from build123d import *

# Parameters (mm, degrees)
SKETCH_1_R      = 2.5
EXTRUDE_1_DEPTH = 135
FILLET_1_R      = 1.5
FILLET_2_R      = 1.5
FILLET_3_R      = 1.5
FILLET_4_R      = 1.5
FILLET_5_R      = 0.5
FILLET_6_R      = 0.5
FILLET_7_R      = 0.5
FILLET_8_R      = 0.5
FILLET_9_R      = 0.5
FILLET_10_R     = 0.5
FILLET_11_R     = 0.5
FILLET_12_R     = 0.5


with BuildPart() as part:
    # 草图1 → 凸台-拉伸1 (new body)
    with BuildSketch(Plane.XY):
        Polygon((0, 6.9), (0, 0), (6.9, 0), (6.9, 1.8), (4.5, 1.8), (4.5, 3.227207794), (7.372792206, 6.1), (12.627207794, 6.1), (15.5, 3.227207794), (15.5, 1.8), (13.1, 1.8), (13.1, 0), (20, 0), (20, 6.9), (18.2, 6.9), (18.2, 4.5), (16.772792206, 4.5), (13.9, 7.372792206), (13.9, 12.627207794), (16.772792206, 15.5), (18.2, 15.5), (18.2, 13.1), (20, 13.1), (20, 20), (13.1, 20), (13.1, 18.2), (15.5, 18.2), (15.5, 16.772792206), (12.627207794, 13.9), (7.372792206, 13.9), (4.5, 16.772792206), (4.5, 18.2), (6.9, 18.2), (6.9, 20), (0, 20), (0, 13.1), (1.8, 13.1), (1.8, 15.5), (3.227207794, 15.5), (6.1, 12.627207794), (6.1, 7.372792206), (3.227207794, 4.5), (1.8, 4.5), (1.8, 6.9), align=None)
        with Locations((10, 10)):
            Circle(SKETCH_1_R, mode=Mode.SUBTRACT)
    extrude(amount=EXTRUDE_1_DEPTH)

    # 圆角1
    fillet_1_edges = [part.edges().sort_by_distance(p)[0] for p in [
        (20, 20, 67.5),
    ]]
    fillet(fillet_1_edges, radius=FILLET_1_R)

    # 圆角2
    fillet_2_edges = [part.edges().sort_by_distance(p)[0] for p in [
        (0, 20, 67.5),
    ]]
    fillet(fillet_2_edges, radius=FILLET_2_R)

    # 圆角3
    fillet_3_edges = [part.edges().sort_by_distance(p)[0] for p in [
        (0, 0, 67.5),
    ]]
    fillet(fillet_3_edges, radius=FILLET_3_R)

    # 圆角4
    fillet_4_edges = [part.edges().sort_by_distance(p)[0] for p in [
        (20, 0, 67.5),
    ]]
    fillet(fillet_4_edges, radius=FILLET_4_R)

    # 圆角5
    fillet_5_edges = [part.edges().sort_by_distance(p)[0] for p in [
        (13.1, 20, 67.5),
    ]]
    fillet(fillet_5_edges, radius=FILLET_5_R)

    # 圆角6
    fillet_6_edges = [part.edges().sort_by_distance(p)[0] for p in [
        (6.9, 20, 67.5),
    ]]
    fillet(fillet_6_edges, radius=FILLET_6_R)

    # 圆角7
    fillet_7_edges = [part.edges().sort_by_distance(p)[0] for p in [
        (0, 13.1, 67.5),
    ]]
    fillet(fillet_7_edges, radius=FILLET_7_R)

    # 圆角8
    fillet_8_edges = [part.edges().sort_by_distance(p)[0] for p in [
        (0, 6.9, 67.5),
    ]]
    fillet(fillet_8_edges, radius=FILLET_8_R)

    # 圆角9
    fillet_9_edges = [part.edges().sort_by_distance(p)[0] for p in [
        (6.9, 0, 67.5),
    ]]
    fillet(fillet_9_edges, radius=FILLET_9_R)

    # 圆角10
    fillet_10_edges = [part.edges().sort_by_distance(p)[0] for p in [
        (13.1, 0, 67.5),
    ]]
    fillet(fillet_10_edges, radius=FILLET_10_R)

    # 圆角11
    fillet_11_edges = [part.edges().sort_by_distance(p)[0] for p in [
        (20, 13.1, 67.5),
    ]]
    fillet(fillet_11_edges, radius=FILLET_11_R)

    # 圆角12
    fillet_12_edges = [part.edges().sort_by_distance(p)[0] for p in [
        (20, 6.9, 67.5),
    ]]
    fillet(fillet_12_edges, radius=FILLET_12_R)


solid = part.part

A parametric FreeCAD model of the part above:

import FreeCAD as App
import Part
import Sketcher

V = App.Vector
Q = App.Units.Quantity


def edges_at(feature, points):
    """Names of the edges that pass closest to the given points."""
    edges = feature.Shape.Edges
    near = lambda p: min(range(len(edges)), key=lambda i: edges[i].distToShape(Part.Vertex(*p))[0])
    return sorted({f"Edge{near(p) + 1}" for p in points})


def add_polygon(sketch, points):
    """Adds a closed chain of lines whose ends are joined by coincident constraints."""
    first, n = sketch.GeometryCount, len(points)
    for a, b in zip(points, points[1:] + points[:1]):
        sketch.addGeometry(Part.LineSegment(App.Vector(*a, 0), App.Vector(*b, 0)), False)
    for i in range(n):
        sketch.addConstraint(Sketcher.Constraint("Coincident", first + i, 2, first + (i + 1) % n, 1))

doc = App.newDocument("Part")
body = doc.addObject("PartDesign::Body", "Body")

# Sketch on XY plane
sketch1 = body.newObject("Sketcher::SketchObject", "Sketch")
sketch1.AttachmentSupport = (doc.getObject("XY_Plane"), [""])
sketch1.MapMode = "FlatFace"
add_polygon(sketch1, [(0, 6.9), (0, 0), (6.9, 0), (6.9, 1.8), (4.5, 1.8), (4.5, 3.2), (7.4, 6.1), (12.6, 6.1), (15.5, 3.2), (15.5, 1.8), (13.1, 1.8), (13.1, 0), (20, 0), (20, 6.9), (18.2, 6.9), (18.2, 4.5), (16.8, 4.5), (13.9, 7.4), (13.9, 12.6), (16.8, 15.5), (18.2, 15.5), (18.2, 13.1), (20, 13.1), (20, 20), (13.1, 20), (13.1, 18.2), (15.5, 18.2), (15.5, 16.8), (12.6, 13.9), (7.4, 13.9), (4.5, 16.8), (4.5, 18.2), (6.9, 18.2), (6.9, 20), (0, 20), (0, 13.1), (1.8, 13.1), (1.8, 15.5), (3.2, 15.5), (6.1, 12.6), (6.1, 7.4), (3.2, 4.5), (1.8, 4.5), (1.8, 6.9)])  # lines 0-43
sketch1.addGeometry(Part.Circle(V(10, 10, 0), V(0, 0, 1), 2.5), False)  # 44
sketch1.addConstraint([
    Sketcher.Constraint("Vertical", 0),
    Sketcher.Constraint("Horizontal", 1),
    Sketcher.Constraint("Vertical", 2),
    Sketcher.Constraint("Horizontal", 3),
    Sketcher.Constraint("Vertical", 4),
    Sketcher.Constraint("Horizontal", 6),
    Sketcher.Constraint("Vertical", 8),
    Sketcher.Constraint("Horizontal", 9),
    Sketcher.Constraint("Vertical", 10),
    Sketcher.Constraint("Horizontal", 11),
    Sketcher.Constraint("Vertical", 12),
    Sketcher.Constraint("Horizontal", 13),
    Sketcher.Constraint("Vertical", 14),
    Sketcher.Constraint("Horizontal", 15),
    Sketcher.Constraint("Vertical", 17),
    Sketcher.Constraint("Horizontal", 19),
    Sketcher.Constraint("Vertical", 20),
    Sketcher.Constraint("Horizontal", 21),
    Sketcher.Constraint("Vertical", 22),
    Sketcher.Constraint("Horizontal", 23),
    Sketcher.Constraint("Vertical", 24),
    Sketcher.Constraint("Horizontal", 25),
    Sketcher.Constraint("Vertical", 26),
    Sketcher.Constraint("Horizontal", 28),
    Sketcher.Constraint("Vertical", 30),
    Sketcher.Constraint("Horizontal", 31),
    Sketcher.Constraint("Vertical", 32),
    Sketcher.Constraint("Horizontal", 33),
    Sketcher.Constraint("Vertical", 34),
    Sketcher.Constraint("Horizontal", 35),
    Sketcher.Constraint("Vertical", 36),
    Sketcher.Constraint("Horizontal", 37),
    Sketcher.Constraint("Vertical", 39),
    Sketcher.Constraint("Horizontal", 41),
    Sketcher.Constraint("Vertical", 42),
    Sketcher.Constraint("Horizontal", 43),
    Sketcher.Constraint("Coincident", 0, 2, -1, 1),
    Sketcher.Constraint("PointOnObject", 10, 2, -1),
    Sketcher.Constraint("PointOnObject", 33, 2, -2),
    Sketcher.Constraint("Perpendicular", 5, 7),
    Sketcher.Constraint("Parallel", 7, 16),
    Sketcher.Constraint("Perpendicular", 16, 18),
    Sketcher.Constraint("Parallel", 18, 27),
    Sketcher.Constraint("Perpendicular", 27, 29),
    Sketcher.Constraint("Parallel", 29, 38),
    Sketcher.Constraint("Perpendicular", 38, 40),
    Sketcher.Constraint("Horizontal", 4, 2, 7, 2),
    Sketcher.Constraint("Horizontal", 3, 2, 8, 2),
    Sketcher.Constraint("Horizontal", 26, 2, 29, 2),
    Sketcher.Constraint("Horizontal", 25, 2, 30, 2),
    Sketcher.Constraint("Horizontal", 23, 2, 32, 2),
    Sketcher.Constraint("Horizontal", 21, 2, 34, 2),
    Sketcher.Constraint("Horizontal", 19, 2, 36, 2),
    Sketcher.Constraint("Horizontal", 17, 2, 38, 2),
    Sketcher.Constraint("Horizontal", 16, 2, 39, 2),
    Sketcher.Constraint("Horizontal", 15, 2, 40, 2),
    Sketcher.Constraint("Horizontal", 13, 2, 42, 2),
    Sketcher.Constraint("Vertical", 15, 2, 18, 2),
    Sketcher.Constraint("Vertical", 14, 2, 19, 2),
    Sketcher.Constraint("Vertical", 12, 2, 21, 2),
    Sketcher.Constraint("Vertical", 10, 2, 23, 2),
    Sketcher.Constraint("Vertical", 8, 2, 25, 2),
    Sketcher.Constraint("Vertical", 6, 2, 27, 2),
    Sketcher.Constraint("Vertical", 5, 2, 28, 2),
    Sketcher.Constraint("Vertical", 4, 2, 29, 2),
    Sketcher.Constraint("Vertical", 2, 2, 31, 2),
    Sketcher.Constraint("Vertical", 36, 2, 41, 2),
    Sketcher.Constraint("Equal", 3, 9),
    Sketcher.Constraint("Equal", 1, 11),
    Sketcher.Constraint("Equal", 21, 35),
    Sketcher.Constraint("Equal", 19, 37),
    Sketcher.Constraint("Equal", 33, 0),
    Sketcher.Constraint("Equal", 43, 2),
    Sketcher.Constraint("Equal", 41, 4),
    Sketcher.Constraint("Equal", 31, 14),
    Sketcher.Constraint("Equal", 28, 17),
    Sketcher.Constraint("Equal", 14, 20),
    Sketcher.Constraint("Equal", 12, 22),
    Sketcher.Constraint("Equal", 10, 24),
    Sketcher.Constraint("Equal", 8, 26),
    Sketcher.Constraint("Equal", 7, 16),
    Sketcher.Constraint("Diameter", 44, Q("5 mm")),
    Sketcher.Constraint("DistanceX", 1, 1, 1, 2, Q("6.9 mm")),
    Sketcher.Constraint("DistanceX", 3, 2, 3, 1, Q("2.4 mm")),
    Sketcher.Constraint("DistanceX", 13, 2, 13, 1, Q("1.8 mm")),
    Sketcher.Constraint("DistanceX", -1, 1, 44, 3, Q("10 mm")),
    Sketcher.Constraint("DistanceY", -1, 1, 44, 3, Q("10 mm")),
    Sketcher.Constraint("DistanceX", -1, 1, 11, 2, Q("20 mm")),
    Sketcher.Constraint("DistanceY", -1, 1, 5, 2, Q("6.1 mm")),
    Sketcher.Constraint("Distance", 5, Q("4.062742 mm")),
])
pad1 = body.newObject("PartDesign::Pad", "Pad")
pad1.Profile = sketch1
pad1.Length = 135
doc.recompute()

fillet = body.newObject("PartDesign::Fillet", "Fillet")
fillet.Base = (pad1, edges_at(pad1, [(20, 20, 67.5)]))
fillet.Radius = 1.5
doc.recompute()

fillet2 = body.newObject("PartDesign::Fillet", "Fillet001")
fillet2.Base = (fillet, edges_at(fillet, [(0, 20, 67.5)]))
fillet2.Radius = 1.5
doc.recompute()

fillet3 = body.newObject("PartDesign::Fillet", "Fillet002")
fillet3.Base = (fillet2, edges_at(fillet2, [(0, 0, 67.5)]))
fillet3.Radius = 1.5
doc.recompute()

fillet4 = body.newObject("PartDesign::Fillet", "Fillet003")
fillet4.Base = (fillet3, edges_at(fillet3, [(20, 0, 67.5)]))
fillet4.Radius = 1.5
doc.recompute()

fillet5 = body.newObject("PartDesign::Fillet", "Fillet004")
fillet5.Base = (fillet4, edges_at(fillet4, [(13.1, 20, 67.5)]))
fillet5.Radius = 0.5
doc.recompute()

fillet6 = body.newObject("PartDesign::Fillet", "Fillet005")
fillet6.Base = (fillet5, edges_at(fillet5, [(6.9, 20, 67.5)]))
fillet6.Radius = 0.5
doc.recompute()

fillet7 = body.newObject("PartDesign::Fillet", "Fillet006")
fillet7.Base = (fillet6, edges_at(fillet6, [(0, 13.1, 67.5)]))
fillet7.Radius = 0.5
doc.recompute()

fillet8 = body.newObject("PartDesign::Fillet", "Fillet007")
fillet8.Base = (fillet7, edges_at(fillet7, [(0, 6.9, 67.5)]))
fillet8.Radius = 0.5
doc.recompute()

fillet9 = body.newObject("PartDesign::Fillet", "Fillet008")
fillet9.Base = (fillet8, edges_at(fillet8, [(6.9, 0, 67.5)]))
fillet9.Radius = 0.5
doc.recompute()

fillet10 = body.newObject("PartDesign::Fillet", "Fillet009")
fillet10.Base = (fillet9, edges_at(fillet9, [(13.1, 0, 67.5)]))
fillet10.Radius = 0.5
doc.recompute()

fillet11 = body.newObject("PartDesign::Fillet", "Fillet010")
fillet11.Base = (fillet10, edges_at(fillet10, [(20, 13.1, 67.5)]))
fillet11.Radius = 0.5
doc.recompute()

fillet12 = body.newObject("PartDesign::Fillet", "Fillet011")
fillet12.Base = (fillet11, edges_at(fillet11, [(20, 6.9, 67.5)]))
fillet12.Radius = 0.5

doc.recompute()
